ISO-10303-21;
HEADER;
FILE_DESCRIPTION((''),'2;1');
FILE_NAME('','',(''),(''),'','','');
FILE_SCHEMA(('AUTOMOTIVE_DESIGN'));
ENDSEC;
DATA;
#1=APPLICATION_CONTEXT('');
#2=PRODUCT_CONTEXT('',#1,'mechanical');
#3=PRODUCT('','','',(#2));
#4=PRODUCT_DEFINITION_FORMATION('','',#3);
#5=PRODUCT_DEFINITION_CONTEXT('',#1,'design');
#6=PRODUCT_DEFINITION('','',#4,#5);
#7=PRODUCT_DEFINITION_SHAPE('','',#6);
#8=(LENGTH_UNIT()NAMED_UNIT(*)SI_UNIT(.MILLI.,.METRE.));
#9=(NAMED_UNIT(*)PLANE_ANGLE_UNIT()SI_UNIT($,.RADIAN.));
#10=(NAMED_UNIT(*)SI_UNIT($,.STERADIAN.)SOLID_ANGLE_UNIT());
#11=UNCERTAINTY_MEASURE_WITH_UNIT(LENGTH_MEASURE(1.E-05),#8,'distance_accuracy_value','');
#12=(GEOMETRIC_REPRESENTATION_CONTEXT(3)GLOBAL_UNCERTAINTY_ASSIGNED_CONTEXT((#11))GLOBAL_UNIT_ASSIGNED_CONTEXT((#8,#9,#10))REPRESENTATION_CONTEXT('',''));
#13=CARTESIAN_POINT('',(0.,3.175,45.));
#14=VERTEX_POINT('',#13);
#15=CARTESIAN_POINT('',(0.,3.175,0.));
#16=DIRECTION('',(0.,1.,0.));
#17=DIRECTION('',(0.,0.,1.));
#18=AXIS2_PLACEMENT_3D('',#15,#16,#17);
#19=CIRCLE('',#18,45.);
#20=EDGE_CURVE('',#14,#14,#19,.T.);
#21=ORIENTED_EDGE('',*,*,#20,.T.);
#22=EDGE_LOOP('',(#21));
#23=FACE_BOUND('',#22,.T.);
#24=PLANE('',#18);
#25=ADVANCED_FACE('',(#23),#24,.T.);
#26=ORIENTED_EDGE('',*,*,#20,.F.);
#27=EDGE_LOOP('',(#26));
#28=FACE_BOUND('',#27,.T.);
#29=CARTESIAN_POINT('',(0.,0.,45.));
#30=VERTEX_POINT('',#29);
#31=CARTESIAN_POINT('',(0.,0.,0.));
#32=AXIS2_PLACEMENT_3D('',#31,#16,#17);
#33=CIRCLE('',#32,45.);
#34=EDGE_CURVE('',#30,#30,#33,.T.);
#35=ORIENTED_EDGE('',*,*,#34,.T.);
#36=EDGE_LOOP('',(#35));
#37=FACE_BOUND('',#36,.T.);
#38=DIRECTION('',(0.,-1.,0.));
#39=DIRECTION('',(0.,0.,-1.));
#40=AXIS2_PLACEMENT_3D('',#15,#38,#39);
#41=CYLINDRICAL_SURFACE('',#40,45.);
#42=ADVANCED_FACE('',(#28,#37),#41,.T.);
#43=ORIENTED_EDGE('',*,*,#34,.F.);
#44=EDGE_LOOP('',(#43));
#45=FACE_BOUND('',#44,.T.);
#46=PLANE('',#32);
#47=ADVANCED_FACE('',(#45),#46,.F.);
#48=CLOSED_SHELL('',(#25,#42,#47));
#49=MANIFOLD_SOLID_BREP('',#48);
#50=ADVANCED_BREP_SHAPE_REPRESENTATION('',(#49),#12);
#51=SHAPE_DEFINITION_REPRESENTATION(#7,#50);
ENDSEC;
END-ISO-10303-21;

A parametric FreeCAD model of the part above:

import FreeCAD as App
import Part
import Sketcher
Q = App.Units.Quantity

doc = App.newDocument("Part")
body = doc.addObject("PartDesign::Body", "Body")

sketch1 = body.newObject("Sketcher::SketchObject", "Sketch")
sketch1.AttachmentSupport = (doc.getObject("XZ_Plane"), [""])
sketch1.MapMode = "FlatFace"
sketch1.addGeometry(Part.Circle(App.Vector(0, 0, 0), App.Vector(0, 0, 1), 45), False)
sketch1.addConstraint(Sketcher.Constraint("Coincident", 0, 3, -1, 1))
sketch1.addConstraint(Sketcher.Constraint("Diameter", 0, Q("90 mm")))
pad1 = body.newObject("PartDesign::Pad", "Pad")
pad1.Profile = sketch1
pad1.Length = 3.175
pad1.Reversed = True

doc.recompute()
